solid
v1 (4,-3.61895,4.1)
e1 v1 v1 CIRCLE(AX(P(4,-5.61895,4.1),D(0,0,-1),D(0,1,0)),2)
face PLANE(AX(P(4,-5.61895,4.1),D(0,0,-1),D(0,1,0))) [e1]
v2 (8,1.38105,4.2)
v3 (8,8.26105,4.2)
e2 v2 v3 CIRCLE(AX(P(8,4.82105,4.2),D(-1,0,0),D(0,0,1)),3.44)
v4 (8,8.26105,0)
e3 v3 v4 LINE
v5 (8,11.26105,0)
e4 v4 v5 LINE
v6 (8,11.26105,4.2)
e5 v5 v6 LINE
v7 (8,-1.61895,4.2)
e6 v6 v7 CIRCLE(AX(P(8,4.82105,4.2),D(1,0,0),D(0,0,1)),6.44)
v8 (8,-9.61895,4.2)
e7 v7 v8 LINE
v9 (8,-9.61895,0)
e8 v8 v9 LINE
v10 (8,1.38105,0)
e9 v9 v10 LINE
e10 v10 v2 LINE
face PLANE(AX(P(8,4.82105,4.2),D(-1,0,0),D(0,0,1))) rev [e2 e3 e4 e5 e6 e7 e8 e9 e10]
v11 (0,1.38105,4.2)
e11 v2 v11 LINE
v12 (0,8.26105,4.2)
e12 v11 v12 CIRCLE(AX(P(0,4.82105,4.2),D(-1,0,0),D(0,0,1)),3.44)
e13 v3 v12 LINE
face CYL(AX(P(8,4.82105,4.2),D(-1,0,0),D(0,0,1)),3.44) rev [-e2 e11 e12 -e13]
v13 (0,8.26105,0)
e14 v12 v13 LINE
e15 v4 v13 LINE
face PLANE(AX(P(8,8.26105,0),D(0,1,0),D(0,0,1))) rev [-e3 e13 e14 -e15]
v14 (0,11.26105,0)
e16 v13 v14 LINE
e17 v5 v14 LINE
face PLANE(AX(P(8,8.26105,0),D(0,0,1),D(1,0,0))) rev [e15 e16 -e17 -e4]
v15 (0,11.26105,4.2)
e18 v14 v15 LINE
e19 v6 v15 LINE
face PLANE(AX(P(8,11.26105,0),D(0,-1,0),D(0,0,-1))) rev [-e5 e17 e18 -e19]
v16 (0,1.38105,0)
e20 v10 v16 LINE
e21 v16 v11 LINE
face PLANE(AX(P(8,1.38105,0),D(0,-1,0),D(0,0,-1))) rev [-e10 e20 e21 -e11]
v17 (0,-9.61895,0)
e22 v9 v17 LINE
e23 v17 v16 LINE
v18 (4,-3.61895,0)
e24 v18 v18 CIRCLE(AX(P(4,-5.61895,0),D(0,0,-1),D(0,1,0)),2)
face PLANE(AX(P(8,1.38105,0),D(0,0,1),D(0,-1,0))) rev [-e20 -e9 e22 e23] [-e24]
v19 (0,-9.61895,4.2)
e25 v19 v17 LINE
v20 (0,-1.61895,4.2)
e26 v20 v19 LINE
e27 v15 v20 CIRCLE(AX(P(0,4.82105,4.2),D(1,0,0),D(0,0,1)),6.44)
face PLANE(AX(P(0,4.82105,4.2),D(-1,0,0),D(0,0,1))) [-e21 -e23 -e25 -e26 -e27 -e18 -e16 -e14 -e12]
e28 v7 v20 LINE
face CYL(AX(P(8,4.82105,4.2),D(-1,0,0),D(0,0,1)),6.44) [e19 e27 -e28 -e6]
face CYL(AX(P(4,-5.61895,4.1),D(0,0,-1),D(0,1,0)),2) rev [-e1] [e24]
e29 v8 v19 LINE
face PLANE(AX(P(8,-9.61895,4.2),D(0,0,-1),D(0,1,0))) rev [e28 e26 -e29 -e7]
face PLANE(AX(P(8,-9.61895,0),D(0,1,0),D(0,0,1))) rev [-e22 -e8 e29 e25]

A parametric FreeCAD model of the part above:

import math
import FreeCAD as App
import Part
import Sketcher
from FreeCAD import Vector
Q = App.Units.Quantity

doc = App.newDocument("Part")
body = doc.addObject("PartDesign::Body", "Body")

sketch1 = body.newObject("Sketcher::SketchObject", "Sketch")
sketch1.AttachmentSupport = (doc.getObject("YZ_Plane"), [""])
sketch1.MapMode = "FlatFace"
sketch1.addGeometry(Part.LineSegment(Vector(-9.61895, 0, 0), Vector(1.38105, 0, 0)), False)
sketch1.addGeometry(Part.LineSegment(Vector(1.38105, 0, 0), Vector(1.38105, 4.2, 0)), False)
sketch1.addGeometry(Part.ArcOfCircle(Part.Circle(Vector(4.82105, 4.2, 0), Vector(0, 0, 1), 3.44), math.radians(0), math.radians(180)), False)
sketch1.addGeometry(Part.LineSegment(Vector(8.26105, 4.2, 0), Vector(8.26105, 0, 0)), False)
sketch1.addGeometry(Part.LineSegment(Vector(8.26105, 0, 0), Vector(11.26105, 0, 0)), False)
sketch1.addGeometry(Part.LineSegment(Vector(11.26105, 0, 0), Vector(11.26105, 4.2, 0)), False)
sketch1.addGeometry(Part.ArcOfCircle(Part.Circle(Vector(4.82105, 4.2, 0), Vector(0, 0, 1), 6.44), math.radians(0), math.radians(180)), False)
sketch1.addGeometry(Part.LineSegment(Vector(-1.61895, 4.2, 0), Vector(-9.61895, 4.2, 0)), False)
sketch1.addGeometry(Part.LineSegment(Vector(-9.61895, 4.2, 0), Vector(-9.61895, 0, 0)), False)
sketch1.addConstraint(Sketcher.Constraint("Coincident", 0, 2, 1, 1))
sketch1.addConstraint(Sketcher.Constraint("Tangent", 1, 2, 2, 2))
sketch1.addConstraint(Sketcher.Constraint("Tangent", 2, 1, 3, 1))
sketch1.addConstraint(Sketcher.Constraint("Coincident", 3, 2, 4, 1))
sketch1.addConstraint(Sketcher.Constraint("Coincident", 4, 2, 5, 1))
sketch1.addConstraint(Sketcher.Constraint("Tangent", 5, 2, 6, 1))
sketch1.addConstraint(Sketcher.Constraint("Coincident", 6, 2, 7, 1))
sketch1.addConstraint(Sketcher.Constraint("Coincident", 7, 2, 8, 1))
sketch1.addConstraint(Sketcher.Constraint("Coincident", 8, 2, 0, 1))
sketch1.addConstraint(Sketcher.Constraint("Horizontal", 0))
sketch1.addConstraint(Sketcher.Constraint("Vertical", 1))
sketch1.addConstraint(Sketcher.Constraint("Vertical", 3))
sketch1.addConstraint(Sketcher.Constraint("Horizontal", 4))
sketch1.addConstraint(Sketcher.Constraint("Vertical", 5))
sketch1.addConstraint(Sketcher.Constraint("Horizontal", 7))
sketch1.addConstraint(Sketcher.Constraint("Vertical", 8))
sketch1.addConstraint(Sketcher.Constraint("Coincident", 6, 3, 2, 3))
sketch1.addConstraint(Sketcher.Constraint("PointOnObject", 0, 2, -1))
sketch1.addConstraint(Sketcher.Constraint("PointOnObject", 3, 2, -1))
sketch1.addConstraint(Sketcher.Constraint("Horizontal", 5, 2, 6, 2))
sketch1.addConstraint(Sketcher.Constraint("DistanceX", 0, 1, 0, 2, Q("11 mm")))
sketch1.addConstraint(Sketcher.Constraint("DistanceX", 4, 1, 4, 2, Q("3 mm")))
sketch1.addConstraint(Sketcher.Constraint("Radius", 2, Q("3.44 mm")))
sketch1.addConstraint(Sketcher.Constraint("DistanceY", 1, 1, 1, 2, Q("4.2 mm")))
sketch1.addConstraint(Sketcher.Constraint("DistanceX", -1, 1, 2, 3, Q("4.82105 mm")))
pad1 = body.newObject("PartDesign::Pad", "Pad")
pad1.Profile = sketch1
pad1.Length = 8

sketch2 = body.newObject("Sketcher::SketchObject", "Sketch001")
sketch2.AttachmentSupport = (doc.getObject("XY_Plane"), [""])
sketch2.MapMode = "FlatFace"
sketch2.addGeometry(Part.Circle(Vector(4, -5.61895, 0), Vector(0, 0, 1), 2), False)
sketch2.addConstraint(Sketcher.Constraint("Diameter", 0, Q("4 mm")))
sketch2.addConstraint(Sketcher.Constraint("DistanceX", -1, 1, 0, 3, Q("4 mm")))
sketch2.addConstraint(Sketcher.Constraint("DistanceY", 0, 3, -1, 1, Q("5.61895 mm")))
pocket1 = body.newObject("PartDesign::Pocket", "Pocket")
pocket1.Profile = sketch2
pocket1.Length = 4.1
pocket1.Reversed = True

doc.recompute()
